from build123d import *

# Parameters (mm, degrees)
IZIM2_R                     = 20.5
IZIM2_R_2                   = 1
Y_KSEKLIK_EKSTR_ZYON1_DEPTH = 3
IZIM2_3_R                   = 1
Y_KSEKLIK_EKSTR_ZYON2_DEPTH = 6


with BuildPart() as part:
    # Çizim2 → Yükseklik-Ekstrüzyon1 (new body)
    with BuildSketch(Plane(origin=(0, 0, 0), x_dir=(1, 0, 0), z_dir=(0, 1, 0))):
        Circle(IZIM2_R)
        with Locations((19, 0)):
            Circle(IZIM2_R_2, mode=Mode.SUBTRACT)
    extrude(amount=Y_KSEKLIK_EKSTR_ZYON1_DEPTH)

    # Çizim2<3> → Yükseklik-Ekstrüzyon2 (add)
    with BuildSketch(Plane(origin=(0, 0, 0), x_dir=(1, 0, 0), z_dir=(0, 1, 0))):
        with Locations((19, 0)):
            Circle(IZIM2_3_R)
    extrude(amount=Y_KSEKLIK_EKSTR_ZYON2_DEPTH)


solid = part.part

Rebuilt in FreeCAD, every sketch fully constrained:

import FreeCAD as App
import Part
import Sketcher

doc = App.newDocument("Part")
body = doc.addObject("PartDesign::Body", "Body")

sketch1 = doc.addObject("Sketcher::SketchObject", "Sketch")
body.addObject(sketch1)
sketch1.AttachmentSupport = (doc.XZ_Plane, [""])
sketch1.MapMode = "FlatFace"
sketch1.addGeometry(Part.Circle(App.Vector(0, 0, 0), App.Vector(0, 0, 1), 20.5), False)
sketch1.addGeometry(Part.Circle(App.Vector(19, 0, 0), App.Vector(0, 0, 1), 1), False)
sketch1.addConstraint(Sketcher.Constraint("Coincident", 0, 3, -1, 1))
sketch1.addConstraint(Sketcher.Constraint("PointOnObject", 1, 3, -1))
sketch1.addConstraint(Sketcher.Constraint("Diameter", 0, 41.0))
sketch1.addConstraint(Sketcher.Constraint("Diameter", 1, 2.0))
sketch1.addConstraint(Sketcher.Constraint("DistanceX", -1, 1, 1, 3, 19.0))
pad1 = doc.addObject("PartDesign::Pad", "Pad")
body.addObject(pad1)
pad1.Profile = sketch1
pad1.Length = 3
pad1.Reversed = True

sketch2 = doc.addObject("Sketcher::SketchObject", "Sketch001")
body.addObject(sketch2)
sketch2.AttachmentSupport = (doc.XZ_Plane, [""])
sketch2.MapMode = "FlatFace"
sketch2.addGeometry(Part.Circle(App.Vector(19, 0, 0), App.Vector(0, 0, 1), 1), False)
sketch2.addConstraint(Sketcher.Constraint("PointOnObject", 0, 3, -1))
sketch2.addConstraint(Sketcher.Constraint("Diameter", 0, 2.0))
sketch2.addConstraint(Sketcher.Constraint("DistanceX", -1, 1, 0, 3, 19.0))
pad2 = doc.addObject("PartDesign::Pad", "Pad001")
body.addObject(pad2)
pad2.Profile = sketch2
pad2.Length = 6
pad2.Reversed = True

doc.recompute()
